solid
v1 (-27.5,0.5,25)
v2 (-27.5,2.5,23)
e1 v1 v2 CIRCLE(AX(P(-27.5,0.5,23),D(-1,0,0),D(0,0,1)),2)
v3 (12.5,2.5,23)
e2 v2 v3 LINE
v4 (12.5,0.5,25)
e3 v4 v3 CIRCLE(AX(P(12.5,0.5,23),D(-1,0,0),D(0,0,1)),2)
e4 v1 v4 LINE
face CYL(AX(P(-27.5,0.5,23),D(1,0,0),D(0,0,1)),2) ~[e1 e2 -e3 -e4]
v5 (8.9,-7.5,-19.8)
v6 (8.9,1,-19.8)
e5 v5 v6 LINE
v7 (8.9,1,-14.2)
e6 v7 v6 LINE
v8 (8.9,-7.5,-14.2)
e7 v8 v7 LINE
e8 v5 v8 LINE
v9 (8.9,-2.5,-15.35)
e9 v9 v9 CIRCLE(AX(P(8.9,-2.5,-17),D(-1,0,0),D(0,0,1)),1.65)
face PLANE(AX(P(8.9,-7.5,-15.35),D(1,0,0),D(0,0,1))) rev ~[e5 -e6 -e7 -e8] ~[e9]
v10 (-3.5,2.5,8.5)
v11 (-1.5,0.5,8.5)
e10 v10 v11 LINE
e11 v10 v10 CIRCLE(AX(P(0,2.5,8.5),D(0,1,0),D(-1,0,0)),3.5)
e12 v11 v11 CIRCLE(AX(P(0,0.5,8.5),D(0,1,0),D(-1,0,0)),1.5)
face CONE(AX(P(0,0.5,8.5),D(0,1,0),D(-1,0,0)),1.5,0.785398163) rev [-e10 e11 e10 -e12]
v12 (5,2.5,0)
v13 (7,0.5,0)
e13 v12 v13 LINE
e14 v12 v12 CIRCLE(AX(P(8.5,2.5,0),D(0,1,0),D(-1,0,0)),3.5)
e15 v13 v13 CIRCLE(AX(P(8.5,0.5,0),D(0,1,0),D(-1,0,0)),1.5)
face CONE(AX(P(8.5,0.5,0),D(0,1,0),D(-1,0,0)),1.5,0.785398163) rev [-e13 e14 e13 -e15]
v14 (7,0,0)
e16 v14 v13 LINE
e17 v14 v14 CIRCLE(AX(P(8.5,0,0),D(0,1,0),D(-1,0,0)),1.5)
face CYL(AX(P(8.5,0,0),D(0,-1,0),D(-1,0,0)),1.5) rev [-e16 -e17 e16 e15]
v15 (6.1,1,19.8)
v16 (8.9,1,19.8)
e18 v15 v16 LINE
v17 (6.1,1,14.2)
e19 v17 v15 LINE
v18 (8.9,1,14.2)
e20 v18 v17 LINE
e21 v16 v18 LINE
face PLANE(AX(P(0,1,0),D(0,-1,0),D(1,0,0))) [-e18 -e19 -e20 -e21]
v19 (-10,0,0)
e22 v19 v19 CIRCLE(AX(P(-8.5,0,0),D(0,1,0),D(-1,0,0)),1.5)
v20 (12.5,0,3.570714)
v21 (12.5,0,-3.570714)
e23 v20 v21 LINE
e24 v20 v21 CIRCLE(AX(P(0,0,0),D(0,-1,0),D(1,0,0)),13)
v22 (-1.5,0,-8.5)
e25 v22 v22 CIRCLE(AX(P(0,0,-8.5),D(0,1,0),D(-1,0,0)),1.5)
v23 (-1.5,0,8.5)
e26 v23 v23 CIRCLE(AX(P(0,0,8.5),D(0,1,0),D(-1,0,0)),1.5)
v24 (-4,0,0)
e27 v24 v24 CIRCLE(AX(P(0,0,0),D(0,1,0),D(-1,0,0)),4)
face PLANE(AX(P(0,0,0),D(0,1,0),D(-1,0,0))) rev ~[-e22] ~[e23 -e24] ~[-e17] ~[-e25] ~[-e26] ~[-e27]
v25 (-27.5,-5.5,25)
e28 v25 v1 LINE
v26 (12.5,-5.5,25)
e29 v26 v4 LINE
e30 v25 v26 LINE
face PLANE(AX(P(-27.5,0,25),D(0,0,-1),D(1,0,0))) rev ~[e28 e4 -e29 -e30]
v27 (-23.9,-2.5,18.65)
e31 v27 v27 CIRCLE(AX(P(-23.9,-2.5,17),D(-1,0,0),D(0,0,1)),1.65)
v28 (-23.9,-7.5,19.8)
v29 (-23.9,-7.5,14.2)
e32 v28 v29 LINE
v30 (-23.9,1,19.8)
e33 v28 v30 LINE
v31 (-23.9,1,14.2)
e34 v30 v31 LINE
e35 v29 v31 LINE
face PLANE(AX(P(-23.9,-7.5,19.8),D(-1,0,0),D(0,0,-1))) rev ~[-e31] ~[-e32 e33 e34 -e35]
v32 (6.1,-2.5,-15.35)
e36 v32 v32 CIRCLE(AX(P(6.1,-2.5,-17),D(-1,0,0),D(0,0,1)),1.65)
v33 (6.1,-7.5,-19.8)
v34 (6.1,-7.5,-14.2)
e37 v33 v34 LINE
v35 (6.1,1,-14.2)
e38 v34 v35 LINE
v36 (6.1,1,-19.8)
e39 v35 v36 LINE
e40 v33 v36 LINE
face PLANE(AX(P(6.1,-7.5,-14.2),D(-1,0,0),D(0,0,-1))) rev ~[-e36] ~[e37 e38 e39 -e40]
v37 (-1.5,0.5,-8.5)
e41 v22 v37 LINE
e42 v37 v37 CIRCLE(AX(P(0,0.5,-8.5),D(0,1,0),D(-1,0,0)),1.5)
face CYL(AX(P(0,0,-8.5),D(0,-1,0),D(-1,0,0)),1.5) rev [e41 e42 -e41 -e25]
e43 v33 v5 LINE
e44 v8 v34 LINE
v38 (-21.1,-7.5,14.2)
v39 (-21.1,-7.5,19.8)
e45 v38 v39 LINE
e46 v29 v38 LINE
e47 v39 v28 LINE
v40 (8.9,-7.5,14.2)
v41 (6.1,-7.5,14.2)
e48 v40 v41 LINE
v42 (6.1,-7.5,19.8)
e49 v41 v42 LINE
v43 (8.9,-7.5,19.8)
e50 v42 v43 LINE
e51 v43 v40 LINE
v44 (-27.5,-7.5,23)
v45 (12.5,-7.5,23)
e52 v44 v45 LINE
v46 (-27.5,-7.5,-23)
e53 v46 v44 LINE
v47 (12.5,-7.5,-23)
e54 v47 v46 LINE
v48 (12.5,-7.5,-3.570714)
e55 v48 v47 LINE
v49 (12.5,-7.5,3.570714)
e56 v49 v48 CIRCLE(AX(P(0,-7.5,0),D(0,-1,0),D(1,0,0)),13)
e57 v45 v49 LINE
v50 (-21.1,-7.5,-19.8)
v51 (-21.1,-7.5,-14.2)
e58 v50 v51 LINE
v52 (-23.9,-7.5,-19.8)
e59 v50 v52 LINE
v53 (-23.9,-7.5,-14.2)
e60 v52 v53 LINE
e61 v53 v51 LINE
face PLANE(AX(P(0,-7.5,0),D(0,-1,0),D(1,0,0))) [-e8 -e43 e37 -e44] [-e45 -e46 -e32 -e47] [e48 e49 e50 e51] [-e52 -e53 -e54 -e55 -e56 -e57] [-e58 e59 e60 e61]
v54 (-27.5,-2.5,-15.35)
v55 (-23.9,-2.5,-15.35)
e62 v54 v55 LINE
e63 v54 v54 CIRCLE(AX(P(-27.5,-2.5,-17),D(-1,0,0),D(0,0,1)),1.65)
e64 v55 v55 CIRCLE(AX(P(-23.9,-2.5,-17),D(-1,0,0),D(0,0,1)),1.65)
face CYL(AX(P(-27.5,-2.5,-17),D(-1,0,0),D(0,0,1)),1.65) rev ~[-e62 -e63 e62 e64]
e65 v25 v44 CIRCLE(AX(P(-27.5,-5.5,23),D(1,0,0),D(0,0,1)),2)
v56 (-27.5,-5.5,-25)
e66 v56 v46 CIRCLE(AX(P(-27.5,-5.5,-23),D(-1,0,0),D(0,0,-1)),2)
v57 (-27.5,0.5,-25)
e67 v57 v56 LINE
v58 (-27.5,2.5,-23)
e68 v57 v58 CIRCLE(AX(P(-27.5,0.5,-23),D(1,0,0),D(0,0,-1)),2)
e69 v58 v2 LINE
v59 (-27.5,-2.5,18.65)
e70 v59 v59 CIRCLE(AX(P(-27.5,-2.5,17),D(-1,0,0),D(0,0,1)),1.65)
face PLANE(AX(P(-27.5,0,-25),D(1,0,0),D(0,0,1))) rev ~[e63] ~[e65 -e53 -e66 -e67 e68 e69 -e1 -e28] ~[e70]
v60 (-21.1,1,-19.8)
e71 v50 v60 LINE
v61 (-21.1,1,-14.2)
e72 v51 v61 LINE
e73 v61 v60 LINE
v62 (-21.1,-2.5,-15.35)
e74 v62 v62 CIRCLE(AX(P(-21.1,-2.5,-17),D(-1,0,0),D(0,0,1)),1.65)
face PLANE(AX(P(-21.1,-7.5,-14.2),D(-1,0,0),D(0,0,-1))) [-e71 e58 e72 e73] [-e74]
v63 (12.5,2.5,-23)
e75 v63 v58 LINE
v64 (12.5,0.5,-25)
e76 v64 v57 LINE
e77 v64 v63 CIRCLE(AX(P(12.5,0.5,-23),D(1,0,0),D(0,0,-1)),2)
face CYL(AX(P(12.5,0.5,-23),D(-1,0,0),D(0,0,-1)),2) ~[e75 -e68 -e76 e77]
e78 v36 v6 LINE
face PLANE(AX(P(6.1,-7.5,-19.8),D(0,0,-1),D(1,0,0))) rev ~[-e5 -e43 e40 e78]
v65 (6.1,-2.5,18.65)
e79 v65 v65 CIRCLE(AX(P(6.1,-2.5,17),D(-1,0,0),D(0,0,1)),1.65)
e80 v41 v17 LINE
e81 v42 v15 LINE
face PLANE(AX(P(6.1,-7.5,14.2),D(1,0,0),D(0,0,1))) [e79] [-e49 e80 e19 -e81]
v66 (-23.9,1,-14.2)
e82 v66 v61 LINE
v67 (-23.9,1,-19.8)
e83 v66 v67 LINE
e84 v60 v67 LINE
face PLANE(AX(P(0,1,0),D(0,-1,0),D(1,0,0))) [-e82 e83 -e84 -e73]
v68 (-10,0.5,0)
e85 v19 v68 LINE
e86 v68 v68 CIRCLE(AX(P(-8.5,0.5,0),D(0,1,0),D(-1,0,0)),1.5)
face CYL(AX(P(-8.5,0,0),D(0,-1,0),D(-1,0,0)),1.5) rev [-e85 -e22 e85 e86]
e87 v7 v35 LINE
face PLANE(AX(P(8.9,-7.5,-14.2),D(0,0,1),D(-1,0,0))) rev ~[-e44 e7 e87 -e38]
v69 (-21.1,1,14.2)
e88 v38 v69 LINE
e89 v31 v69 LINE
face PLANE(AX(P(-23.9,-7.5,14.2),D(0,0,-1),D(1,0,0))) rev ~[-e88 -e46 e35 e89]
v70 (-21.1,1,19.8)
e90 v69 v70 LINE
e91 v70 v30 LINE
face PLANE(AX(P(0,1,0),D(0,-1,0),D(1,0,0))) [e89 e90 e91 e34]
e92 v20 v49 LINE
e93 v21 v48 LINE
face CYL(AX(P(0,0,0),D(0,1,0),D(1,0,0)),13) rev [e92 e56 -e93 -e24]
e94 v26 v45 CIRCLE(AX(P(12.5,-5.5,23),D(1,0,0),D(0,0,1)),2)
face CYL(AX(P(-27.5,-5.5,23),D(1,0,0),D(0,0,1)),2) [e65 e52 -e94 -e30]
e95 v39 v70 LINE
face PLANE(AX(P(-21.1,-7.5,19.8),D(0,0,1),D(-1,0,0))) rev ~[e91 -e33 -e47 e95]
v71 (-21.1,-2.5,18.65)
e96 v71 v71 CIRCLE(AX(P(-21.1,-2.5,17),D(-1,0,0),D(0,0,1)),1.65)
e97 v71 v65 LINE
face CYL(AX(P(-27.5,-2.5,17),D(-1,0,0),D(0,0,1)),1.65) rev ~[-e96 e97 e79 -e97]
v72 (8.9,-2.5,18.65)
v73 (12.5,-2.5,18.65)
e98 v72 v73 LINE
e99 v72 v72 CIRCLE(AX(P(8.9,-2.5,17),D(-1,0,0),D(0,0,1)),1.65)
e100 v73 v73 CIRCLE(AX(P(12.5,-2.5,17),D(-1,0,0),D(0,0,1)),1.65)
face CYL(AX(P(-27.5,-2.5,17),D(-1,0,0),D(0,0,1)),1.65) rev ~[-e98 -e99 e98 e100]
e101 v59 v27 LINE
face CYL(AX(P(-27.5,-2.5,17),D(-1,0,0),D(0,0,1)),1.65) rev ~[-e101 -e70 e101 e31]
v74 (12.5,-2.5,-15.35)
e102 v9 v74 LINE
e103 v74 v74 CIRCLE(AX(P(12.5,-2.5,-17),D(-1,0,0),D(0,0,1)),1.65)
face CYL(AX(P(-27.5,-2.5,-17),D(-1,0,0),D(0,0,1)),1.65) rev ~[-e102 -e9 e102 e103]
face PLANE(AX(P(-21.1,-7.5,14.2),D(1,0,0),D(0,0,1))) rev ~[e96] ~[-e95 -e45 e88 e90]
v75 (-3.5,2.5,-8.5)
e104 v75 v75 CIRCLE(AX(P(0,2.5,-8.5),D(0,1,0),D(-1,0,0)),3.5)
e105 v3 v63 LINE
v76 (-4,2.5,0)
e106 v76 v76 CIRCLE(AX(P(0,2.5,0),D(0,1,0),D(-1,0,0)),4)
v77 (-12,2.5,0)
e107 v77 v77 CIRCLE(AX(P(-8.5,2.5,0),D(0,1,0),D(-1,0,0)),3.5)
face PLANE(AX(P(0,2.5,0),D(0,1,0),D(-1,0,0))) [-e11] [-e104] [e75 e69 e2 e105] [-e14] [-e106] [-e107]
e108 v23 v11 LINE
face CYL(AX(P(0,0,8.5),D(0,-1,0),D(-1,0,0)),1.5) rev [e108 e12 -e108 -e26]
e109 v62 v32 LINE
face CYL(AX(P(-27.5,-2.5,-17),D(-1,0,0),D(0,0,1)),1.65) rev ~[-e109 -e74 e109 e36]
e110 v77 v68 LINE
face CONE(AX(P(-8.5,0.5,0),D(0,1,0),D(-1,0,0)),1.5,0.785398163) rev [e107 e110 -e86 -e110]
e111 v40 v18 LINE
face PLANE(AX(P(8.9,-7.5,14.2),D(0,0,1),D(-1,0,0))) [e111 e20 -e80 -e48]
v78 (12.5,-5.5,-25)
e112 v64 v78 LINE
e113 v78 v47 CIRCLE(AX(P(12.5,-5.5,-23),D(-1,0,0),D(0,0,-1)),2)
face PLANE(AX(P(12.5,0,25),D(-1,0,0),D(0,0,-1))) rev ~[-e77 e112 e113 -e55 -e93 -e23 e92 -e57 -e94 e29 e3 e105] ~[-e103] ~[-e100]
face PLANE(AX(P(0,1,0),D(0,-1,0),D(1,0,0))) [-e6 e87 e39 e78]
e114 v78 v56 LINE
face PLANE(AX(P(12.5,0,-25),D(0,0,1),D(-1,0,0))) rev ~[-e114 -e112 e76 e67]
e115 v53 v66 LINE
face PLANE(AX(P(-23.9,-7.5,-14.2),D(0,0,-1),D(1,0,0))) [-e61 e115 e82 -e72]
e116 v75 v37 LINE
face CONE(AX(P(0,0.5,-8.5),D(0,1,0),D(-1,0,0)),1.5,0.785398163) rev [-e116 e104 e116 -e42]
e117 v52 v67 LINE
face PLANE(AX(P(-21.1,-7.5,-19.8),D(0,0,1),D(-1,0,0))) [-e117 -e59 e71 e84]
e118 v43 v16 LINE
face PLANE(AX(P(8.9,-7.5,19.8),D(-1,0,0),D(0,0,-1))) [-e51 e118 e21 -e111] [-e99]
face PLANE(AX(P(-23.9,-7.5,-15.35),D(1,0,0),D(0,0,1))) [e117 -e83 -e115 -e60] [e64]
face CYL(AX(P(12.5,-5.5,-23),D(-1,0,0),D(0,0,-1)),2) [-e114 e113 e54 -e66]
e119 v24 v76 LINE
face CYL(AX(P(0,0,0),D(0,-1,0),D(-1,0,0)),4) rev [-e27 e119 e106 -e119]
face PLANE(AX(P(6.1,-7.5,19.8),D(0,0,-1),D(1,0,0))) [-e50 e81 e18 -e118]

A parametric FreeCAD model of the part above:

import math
import FreeCAD as App
import Part
import Sketcher
from FreeCAD import Vector


def edges_at(feature, points):
    """Names of the edges that pass closest to the given points."""
    edges = feature.Shape.Edges
    near = lambda p: min(range(len(edges)), key=lambda i: edges[i].distToShape(Part.Vertex(*p))[0])
    return sorted({f"Edge{near(p) + 1}" for p in points})

doc = App.newDocument("Part")
body = doc.addObject("PartDesign::Body", "Body")

# Sketch on XZ plane
sketch1 = doc.addObject("Sketcher::SketchObject", "Sketch")
body.addObject(sketch1)
sketch1.AttachmentSupport = (doc.XZ_Plane, [""])
sketch1.MapMode = "FlatFace"
sketch1.addGeometry([
    Part.LineSegment(Vector(-27.5, -25, 0), Vector(-27.5, 25, 0)),  # 0
    Part.LineSegment(Vector(-27.5, 25, 0), Vector(12.5, 25, 0)),  # 1
    Part.LineSegment(Vector(12.5, 25, 0), Vector(12.5, -25, 0)),  # 2
    Part.LineSegment(Vector(12.5, -25, 0), Vector(-27.5, -25, 0)),  # 3
    Part.Circle(Vector(0, -8.5, 0), Vector(0, 0, 1), 1.5),  # 4
    Part.Circle(Vector(8.5, 0, 0), Vector(0, 0, 1), 1.5),  # 5
    Part.Circle(Vector(0, 0, 0), Vector(0, 0, 1), 4),  # 6
    Part.Circle(Vector(0, 8.5, 0), Vector(0, 0, 1), 1.5),  # 7
    Part.Circle(Vector(-8.5, 0, 0), Vector(0, 0, 1), 1.5),  # 8
], False)
sketch1.addConstraint([
    Sketcher.Constraint("Coincident", 0, 2, 1, 1),
    Sketcher.Constraint("Coincident", 1, 2, 2, 1),
    Sketcher.Constraint("Coincident", 2, 2, 3, 1),
    Sketcher.Constraint("Coincident", 3, 2, 0, 1),
    Sketcher.Constraint("Vertical", 0),
    Sketcher.Constraint("Horizontal", 1),
    Sketcher.Constraint("Vertical", 2),
    Sketcher.Constraint("Horizontal", 3),
    Sketcher.Constraint("Coincident", 6, 3, -1, 1),
    Sketcher.Constraint("Equal", 4, 5),
    Sketcher.Constraint("Equal", 5, 7),
    Sketcher.Constraint("Equal", 7, 8),
    Sketcher.Constraint("Symmetric", 4, 3, 7, 3, -1, 1),
    Sketcher.Constraint("Symmetric", 5, 3, 8, 3, -1, 1),
    Sketcher.Constraint("PointOnObject", 4, 3, -2),
    Sketcher.Constraint("PointOnObject", 5, 3, -1),
    Sketcher.Constraint("Diameter", 4, 3.0),
    Sketcher.Constraint("Diameter", 6, 8.0),
    Sketcher.Constraint("DistanceX", 1, 1, 1, 2, 40.0),
    Sketcher.Constraint("DistanceY", 0, 1, 0, 2, 50.0),
    Sketcher.Constraint("DistanceY", -1, 1, 0, 2, 25.0),
    Sketcher.Constraint("DistanceY", 4, 3, 7, 3, 17.0),
    Sketcher.Constraint("DistanceX", 8, 3, 5, 3, 17.0),
    Sketcher.Constraint("DistanceX", 0, 2, 8, 3, 19.0),
])
pad1 = doc.addObject("PartDesign::Pad", "Pad")
body.addObject(pad1)
pad1.Profile = sketch1
pad1.Length = 2.5
pad1.Reversed = True

# Sketch on XZ plane
sketch2 = doc.addObject("Sketcher::SketchObject", "Sketch001")
body.addObject(sketch2)
sketch2.AttachmentSupport = (doc.XZ_Plane, [""])
sketch2.MapMode = "FlatFace"
sketch2.addGeometry([
    Part.ArcOfCircle(Part.Circle(Vector(0, 0, 0), Vector(0, 0, 1), 13), math.radians(16), math.radians(344)),  # 0
    Part.LineSegment(Vector(12, 4, 0), Vector(12, 25, 0)),  # 1
    Part.LineSegment(Vector(12, 25, 0), Vector(-28, 25, 0)),  # 2
    Part.LineSegment(Vector(-28, 25, 0), Vector(-28, -25, 0)),  # 3
    Part.LineSegment(Vector(-28, -25, 0), Vector(12, -25, 0)),  # 4
    Part.LineSegment(Vector(12, -25, 0), Vector(12, -4, 0)),  # 5
], False)
sketch2.addConstraint([
    Sketcher.Constraint("Coincident", 0, 1, 1, 1),
    Sketcher.Constraint("Coincident", 1, 2, 2, 1),
    Sketcher.Constraint("Coincident", 2, 2, 3, 1),
    Sketcher.Constraint("Coincident", 3, 2, 4, 1),
    Sketcher.Constraint("Coincident", 4, 2, 5, 1),
    Sketcher.Constraint("Coincident", 5, 2, 0, 2),
    Sketcher.Constraint("Vertical", 1),
    Sketcher.Constraint("Horizontal", 2),
    Sketcher.Constraint("Vertical", 3),
    Sketcher.Constraint("Horizontal", 4),
    Sketcher.Constraint("Vertical", 5),
    Sketcher.Constraint("Coincident", 0, 3, -1, 1),
    Sketcher.Constraint("Symmetric", 1, 2, 4, 2, -1),
    Sketcher.Constraint("Radius", 0, 13.0),
    Sketcher.Constraint("DistanceX", 2, 2, 2, 1, 40.0),
    Sketcher.Constraint("DistanceY", 3, 2, 3, 1, 50.0),
    Sketcher.Constraint("DistanceX", -1, 1, 0, 1, 12.5),
])
pad2 = doc.addObject("PartDesign::Pad", "Pad001")
body.addObject(pad2)
pad2.Profile = sketch2
pad2.Length = 7.5
doc.recompute()

fillet = doc.addObject("PartDesign::Fillet", "Fillet")
body.addObject(fillet)
fillet.Base = (pad2, edges_at(pad2, [
    (-7.5, -7.5, -25),
    (-7.5, 2.5, -25),
    (-7.5, -7.5, 25),
    (-7.5, 2.5, 25),
]))
fillet.Radius = 2

# Sketch on YZ plane
sketch3 = doc.addObject("Sketcher::SketchObject", "Sketch002")
body.addObject(sketch3)
sketch3.AttachmentSupport = (doc.YZ_Plane, [""])
sketch3.MapMode = "FlatFace"
sketch3.AttachmentOffset = App.Placement(Vector(0, 0, -27.5), App.Rotation())
sketch3.addGeometry([
    Part.Circle(Vector(-2.5, 17, 0), Vector(0, 0, 1), 1.6),
    Part.Circle(Vector(-2.5, -17, 0), Vector(0, 0, 1), 1.6),
], False)
sketch3.addConstraint([
    Sketcher.Constraint("Equal", 0, 1),
    Sketcher.Constraint("Symmetric", 0, 3, 1, 3, -1),
    Sketcher.Constraint("Diameter", 0, 3.3),
    Sketcher.Constraint("DistanceY", 1, 3, 0, 3, 34.0),
    Sketcher.Constraint("DistanceX", 0, 3, -1, 1, 2.5),
])
pocket1 = doc.addObject("PartDesign::Pocket", "Pocket")
body.addObject(pocket1)
pocket1.Profile = sketch3
pocket1.Type = "ThroughAll"
pocket1.Reversed = True
doc.recompute()

chamfer = doc.addObject("PartDesign::Chamfer", "Chamfer")
body.addObject(chamfer)
chamfer.Base = (pocket1, edges_at(pocket1, [
    (-7, 2.5, 0),
    (10, 2.5, 0),
    (1.5, 2.5, -8.5),
    (1.5, 2.5, 8.5),
]))
chamfer.Size = 2

# Sketch on XZ plane
sketch4 = doc.addObject("Sketcher::SketchObject", "Sketch003")
body.addObject(sketch4)
sketch4.AttachmentSupport = (doc.XZ_Plane, [""])
sketch4.MapMode = "FlatFace"
sketch4.AttachmentOffset = App.Placement(Vector(0, 0, 7.5), App.Rotation())
sketch4.addGeometry([
    Part.LineSegment(Vector(-23.9, -14.2, 0), Vector(-23.9, -19.8, 0)),  # 0
    Part.LineSegment(Vector(-23.9, -19.8, 0), Vector(-21.1, -19.8, 0)),  # 1
    Part.LineSegment(Vector(-21.1, -19.8, 0), Vector(-21.1, -14.2, 0)),  # 2
    Part.LineSegment(Vector(-21.1, -14.2, 0), Vector(-23.9, -14.2, 0)),  # 3
    Part.LineSegment(Vector(6.1, -14.2, 0), Vector(6.1, -19.8, 0)),  # 4
    Part.LineSegment(Vector(6.1, -19.8, 0), Vector(8.9, -19.8, 0)),  # 5
    Part.LineSegment(Vector(8.9, -19.8, 0), Vector(8.9, -14.2, 0)),  # 6
    Part.LineSegment(Vector(8.9, -14.2, 0), Vector(6.1, -14.2, 0)),  # 7
    Part.LineSegment(Vector(6.1, 14.2, 0), Vector(8.9, 14.2, 0)),  # 8
    Part.LineSegment(Vector(8.9, 14.2, 0), Vector(8.9, 19.8, 0)),  # 9
    Part.LineSegment(Vector(8.9, 19.8, 0), Vector(6.1, 19.8, 0)),  # 10
    Part.LineSegment(Vector(6.1, 19.8, 0), Vector(6.1, 14.2, 0)),  # 11
    Part.LineSegment(Vector(-23.9, 14.2, 0), Vector(-21.1, 14.2, 0)),  # 12
    Part.LineSegment(Vector(-21.1, 14.2, 0), Vector(-21.1, 19.8, 0)),  # 13
    Part.LineSegment(Vector(-21.1, 19.8, 0), Vector(-23.9, 19.8, 0)),  # 14
    Part.LineSegment(Vector(-23.9, 19.8, 0), Vector(-23.9, 14.2, 0)),  # 15
], False)
sketch4.addConstraint([
    Sketcher.Constraint("Coincident", 0, 2, 1, 1),
    Sketcher.Constraint("Coincident", 1, 2, 2, 1),
    Sketcher.Constraint("Coincident", 2, 2, 3, 1),
    Sketcher.Constraint("Coincident", 3, 2, 0, 1),
    Sketcher.Constraint("Coincident", 4, 2, 5, 1),
    Sketcher.Constraint("Coincident", 5, 2, 6, 1),
    Sketcher.Constraint("Coincident", 6, 2, 7, 1),
    Sketcher.Constraint("Coincident", 7, 2, 4, 1),
    Sketcher.Constraint("Coincident", 8, 2, 9, 1),
    Sketcher.Constraint("Coincident", 9, 2, 10, 1),
    Sketcher.Constraint("Coincident", 10, 2, 11, 1),
    Sketcher.Constraint("Coincident", 11, 2, 8, 1),
    Sketcher.Constraint("Coincident", 12, 2, 13, 1),
    Sketcher.Constraint("Coincident", 13, 2, 14, 1),
    Sketcher.Constraint("Coincident", 14, 2, 15, 1),
    Sketcher.Constraint("Coincident", 15, 2, 12, 1),
    Sketcher.Constraint("Vertical", 0),
    Sketcher.Constraint("Horizontal", 1),
    Sketcher.Constraint("Vertical", 2),
    Sketcher.Constraint("Horizontal", 3),
    Sketcher.Constraint("Vertical", 4),
    Sketcher.Constraint("Horizontal", 5),
    Sketcher.Constraint("Vertical", 6),
    Sketcher.Constraint("Horizontal", 7),
    Sketcher.Constraint("Horizontal", 8),
    Sketcher.Constraint("Vertical", 9),
    Sketcher.Constraint("Horizontal", 10),
    Sketcher.Constraint("Vertical", 11),
    Sketcher.Constraint("Horizontal", 12),
    Sketcher.Constraint("Vertical", 13),
    Sketcher.Constraint("Horizontal", 14),
    Sketcher.Constraint("Vertical", 15),
    Sketcher.Constraint("Symmetric", 6, 2, 8, 2, -1),
    Sketcher.Constraint("Symmetric", 4, 2, 10, 2, -1),
    Sketcher.Constraint("Symmetric", 2, 2, 12, 2, -1),
    Sketcher.Constraint("Symmetric", 0, 2, 14, 2, -1),
    Sketcher.Constraint("Horizontal", 1, 2, 4, 2),
    Sketcher.Constraint("Horizontal", 3, 2, 6, 2),
    Sketcher.Constraint("Equal", 3, 5),
    Sketcher.Constraint("DistanceX", 1, 1, 1, 2, 2.8),
    Sketcher.Constraint("DistanceY", 0, 2, 0, 1, 5.6),
    Sketcher.Constraint("DistanceX", 0, 2, 4, 2, 30.0),
    Sketcher.Constraint("DistanceY", 5, 2, 8, 2, 34.0),
    Sketcher.Constraint("DistanceX", 0, 2, -1, 1, 23.9),
])
pocket2 = doc.addObject("PartDesign::Pocket", "Pocket001")
body.addObject(pocket2)
pocket2.Profile = sketch4
pocket2.Length = 8.5

doc.recompute()
